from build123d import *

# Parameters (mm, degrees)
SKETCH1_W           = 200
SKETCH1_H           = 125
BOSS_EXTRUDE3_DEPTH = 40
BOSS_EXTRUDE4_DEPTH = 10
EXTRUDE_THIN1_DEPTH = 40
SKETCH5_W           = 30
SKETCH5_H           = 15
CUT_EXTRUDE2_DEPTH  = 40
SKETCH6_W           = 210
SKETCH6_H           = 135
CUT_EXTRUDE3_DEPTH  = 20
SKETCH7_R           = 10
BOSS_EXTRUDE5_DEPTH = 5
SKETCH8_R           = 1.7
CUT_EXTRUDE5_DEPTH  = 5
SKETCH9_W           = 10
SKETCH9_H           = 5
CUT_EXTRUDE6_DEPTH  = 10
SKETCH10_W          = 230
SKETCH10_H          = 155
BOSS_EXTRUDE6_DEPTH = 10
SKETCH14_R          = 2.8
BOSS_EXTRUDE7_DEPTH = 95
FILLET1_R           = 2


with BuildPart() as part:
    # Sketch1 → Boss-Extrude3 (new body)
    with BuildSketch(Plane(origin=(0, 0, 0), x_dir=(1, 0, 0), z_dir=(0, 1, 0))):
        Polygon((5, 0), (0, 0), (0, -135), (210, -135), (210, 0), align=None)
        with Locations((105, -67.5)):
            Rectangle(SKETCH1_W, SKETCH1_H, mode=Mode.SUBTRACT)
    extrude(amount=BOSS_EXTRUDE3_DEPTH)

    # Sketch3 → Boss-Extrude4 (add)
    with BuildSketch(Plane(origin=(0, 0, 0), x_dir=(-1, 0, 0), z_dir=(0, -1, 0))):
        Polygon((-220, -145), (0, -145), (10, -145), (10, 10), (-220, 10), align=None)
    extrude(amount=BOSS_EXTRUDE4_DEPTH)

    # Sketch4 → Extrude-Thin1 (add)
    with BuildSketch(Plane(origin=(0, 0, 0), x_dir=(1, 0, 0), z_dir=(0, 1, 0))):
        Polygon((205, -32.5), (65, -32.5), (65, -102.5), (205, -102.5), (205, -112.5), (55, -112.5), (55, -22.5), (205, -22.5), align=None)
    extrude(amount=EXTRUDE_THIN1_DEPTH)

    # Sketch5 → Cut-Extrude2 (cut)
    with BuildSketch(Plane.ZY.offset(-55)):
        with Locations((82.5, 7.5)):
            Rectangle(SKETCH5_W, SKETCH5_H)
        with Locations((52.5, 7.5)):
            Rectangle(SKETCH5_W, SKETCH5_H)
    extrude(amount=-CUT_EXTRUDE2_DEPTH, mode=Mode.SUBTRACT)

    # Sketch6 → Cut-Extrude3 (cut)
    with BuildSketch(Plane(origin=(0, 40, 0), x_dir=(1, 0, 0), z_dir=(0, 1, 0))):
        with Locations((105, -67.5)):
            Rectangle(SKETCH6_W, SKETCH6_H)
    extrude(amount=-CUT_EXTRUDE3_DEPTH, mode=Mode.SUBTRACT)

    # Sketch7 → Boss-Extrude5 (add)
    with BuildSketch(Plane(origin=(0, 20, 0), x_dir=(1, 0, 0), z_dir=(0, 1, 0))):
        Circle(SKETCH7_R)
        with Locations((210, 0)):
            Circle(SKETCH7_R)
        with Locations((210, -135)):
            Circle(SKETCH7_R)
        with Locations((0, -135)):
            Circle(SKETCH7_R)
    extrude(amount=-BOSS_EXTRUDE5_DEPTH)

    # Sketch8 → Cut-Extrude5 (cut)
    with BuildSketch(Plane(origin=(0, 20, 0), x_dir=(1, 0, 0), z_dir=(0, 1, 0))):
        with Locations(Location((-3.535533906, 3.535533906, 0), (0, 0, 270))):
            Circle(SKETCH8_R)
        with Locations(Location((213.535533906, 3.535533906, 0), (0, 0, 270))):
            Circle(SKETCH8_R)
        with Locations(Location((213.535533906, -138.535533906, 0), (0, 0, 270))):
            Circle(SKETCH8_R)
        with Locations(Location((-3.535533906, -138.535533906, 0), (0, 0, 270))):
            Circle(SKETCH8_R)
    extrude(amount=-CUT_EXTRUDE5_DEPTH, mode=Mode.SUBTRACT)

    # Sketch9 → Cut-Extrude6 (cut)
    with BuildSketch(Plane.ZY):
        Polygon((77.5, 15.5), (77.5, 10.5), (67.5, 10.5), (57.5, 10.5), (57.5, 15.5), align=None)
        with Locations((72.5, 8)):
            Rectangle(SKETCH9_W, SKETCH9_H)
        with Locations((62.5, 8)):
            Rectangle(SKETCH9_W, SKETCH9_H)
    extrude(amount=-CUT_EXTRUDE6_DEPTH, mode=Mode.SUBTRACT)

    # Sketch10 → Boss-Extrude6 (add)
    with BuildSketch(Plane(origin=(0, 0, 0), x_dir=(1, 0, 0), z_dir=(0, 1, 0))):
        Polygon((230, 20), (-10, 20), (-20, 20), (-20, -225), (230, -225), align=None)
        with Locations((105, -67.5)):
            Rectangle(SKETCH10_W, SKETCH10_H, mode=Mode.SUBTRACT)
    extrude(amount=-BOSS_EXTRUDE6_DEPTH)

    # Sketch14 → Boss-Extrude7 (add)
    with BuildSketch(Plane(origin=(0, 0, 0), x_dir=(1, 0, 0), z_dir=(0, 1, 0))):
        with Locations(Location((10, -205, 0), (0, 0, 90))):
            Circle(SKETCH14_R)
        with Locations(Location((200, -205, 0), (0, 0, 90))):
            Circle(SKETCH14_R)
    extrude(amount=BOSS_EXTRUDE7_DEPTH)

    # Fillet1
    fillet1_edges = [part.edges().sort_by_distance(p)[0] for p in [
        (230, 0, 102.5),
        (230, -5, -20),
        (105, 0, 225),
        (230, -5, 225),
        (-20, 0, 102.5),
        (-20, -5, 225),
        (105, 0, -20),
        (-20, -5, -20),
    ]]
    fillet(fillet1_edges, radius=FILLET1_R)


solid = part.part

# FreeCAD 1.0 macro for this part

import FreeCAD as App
import Part
import Sketcher

V = App.Vector
Q = App.Units.Quantity


def edges_at(feature, points):
    """Names of the edges that pass closest to the given points."""
    edges = feature.Shape.Edges
    near = lambda p: min(range(len(edges)), key=lambda i: edges[i].distToShape(Part.Vertex(*p))[0])
    return sorted({f"Edge{near(p) + 1}" for p in points})


def add_polygon(sketch, points):
    """Adds a closed chain of lines whose ends are joined by coincident constraints."""
    first, n = sketch.GeometryCount, len(points)
    for a, b in zip(points, points[1:] + points[:1]):
        sketch.addGeometry(Part.LineSegment(App.Vector(*a, 0), App.Vector(*b, 0)), False)
    for i in range(n):
        sketch.addConstraint(Sketcher.Constraint("Coincident", first + i, 2, first + (i + 1) % n, 1))

doc = App.newDocument("Part")
body = doc.addObject("PartDesign::Body", "Body")

# Sketch on XZ plane
sketch1 = body.newObject("Sketcher::SketchObject", "Sketch")
sketch1.AttachmentSupport = (doc.getObject("XZ_Plane"), [""])
sketch1.MapMode = "FlatFace"
add_polygon(sketch1, [(0, 0), (0, 135), (210, 135), (210, 0)])  # lines 0-3
add_polygon(sketch1, [(205, 130), (5, 130), (5, 5), (205, 5)])  # lines 4-7
sketch1.addConstraint(Sketcher.Constraint("Vertical", 0))
sketch1.addConstraint(Sketcher.Constraint("Horizontal", 1))
sketch1.addConstraint(Sketcher.Constraint("Vertical", 2))
sketch1.addConstraint(Sketcher.Constraint("Horizontal", 3))
sketch1.addConstraint(Sketcher.Constraint("Horizontal", 4))
sketch1.addConstraint(Sketcher.Constraint("Vertical", 5))
sketch1.addConstraint(Sketcher.Constraint("Horizontal", 6))
sketch1.addConstraint(Sketcher.Constraint("Vertical", 7))
sketch1.addConstraint(Sketcher.Constraint("Coincident", 3, 2, -1, 1))
sketch1.addConstraint(Sketcher.Constraint("DistanceX", 1, 1, 1, 2, Q("210 mm")))
sketch1.addConstraint(Sketcher.Constraint("DistanceX", 4, 2, 4, 1, Q("200 mm")))
sketch1.addConstraint(Sketcher.Constraint("DistanceY", 0, 1, 0, 2, Q("135 mm")))
sketch1.addConstraint(Sketcher.Constraint("DistanceY", 5, 2, 5, 1, Q("125 mm")))
sketch1.addConstraint(Sketcher.Constraint("DistanceX", -1, 1, 4, 2, Q("5 mm")))
sketch1.addConstraint(Sketcher.Constraint("DistanceY", -1, 1, 4, 2, Q("130 mm")))
pad1 = body.newObject("PartDesign::Pad", "Pad")
pad1.Profile = sketch1
pad1.Length = 40
pad1.Reversed = True

# Sketch on XZ plane
sketch2 = body.newObject("Sketcher::SketchObject", "Sketch001")
sketch2.AttachmentSupport = (doc.getObject("XZ_Plane"), [""])
sketch2.MapMode = "FlatFace"
add_polygon(sketch2, [(220, 145), (-10, 145), (-10, -10), (220, -10)])  # lines 0-3
sketch2.addConstraint(Sketcher.Constraint("Horizontal", 0))
sketch2.addConstraint(Sketcher.Constraint("Vertical", 1))
sketch2.addConstraint(Sketcher.Constraint("Horizontal", 2))
sketch2.addConstraint(Sketcher.Constraint("Vertical", 3))
sketch2.addConstraint(Sketcher.Constraint("DistanceX", 0, 2, 0, 1, Q("230 mm")))
sketch2.addConstraint(Sketcher.Constraint("DistanceY", 1, 2, 1, 1, Q("155 mm")))
sketch2.addConstraint(Sketcher.Constraint("DistanceX", 0, 2, -1, 1, Q("10 mm")))
sketch2.addConstraint(Sketcher.Constraint("DistanceY", -1, 1, 0, 2, Q("145 mm")))
pad2 = body.newObject("PartDesign::Pad", "Pad001")
pad2.Profile = sketch2
pad2.Length = 10

# Sketch on XZ plane
sketch3 = body.newObject("Sketcher::SketchObject", "Sketch002")
sketch3.AttachmentSupport = (doc.getObject("XZ_Plane"), [""])
sketch3.MapMode = "FlatFace"
add_polygon(sketch3, [(65, 32), (205, 32), (205, 22), (55, 22), (55, 112), (205, 112), (205, 102), (65, 102)])  # lines 0-7
sketch3.addConstraint(Sketcher.Constraint("Horizontal", 0))
sketch3.addConstraint(Sketcher.Constraint("Vertical", 1))
sketch3.addConstraint(Sketcher.Constraint("Horizontal", 2))
sketch3.addConstraint(Sketcher.Constraint("Vertical", 3))
sketch3.addConstraint(Sketcher.Constraint("Horizontal", 4))
sketch3.addConstraint(Sketcher.Constraint("Vertical", 5))
sketch3.addConstraint(Sketcher.Constraint("Horizontal", 6))
sketch3.addConstraint(Sketcher.Constraint("Vertical", 7))
sketch3.addConstraint(Sketcher.Constraint("Vertical", 1, 2, 4, 2))
sketch3.addConstraint(Sketcher.Constraint("Equal", 1, 5))
sketch3.addConstraint(Sketcher.Constraint("DistanceX", 0, 1, 0, 2, Q("140 mm")))
sketch3.addConstraint(Sketcher.Constraint("DistanceX", 2, 2, 2, 1, Q("150 mm")))
sketch3.addConstraint(Sketcher.Constraint("DistanceY", 1, 2, 1, 1, Q("10 mm")))
sketch3.addConstraint(Sketcher.Constraint("DistanceY", 3, 1, 3, 2, Q("90 mm")))
sketch3.addConstraint(Sketcher.Constraint("DistanceX", -1, 1, 0, 2, Q("205 mm")))
sketch3.addConstraint(Sketcher.Constraint("DistanceY", -1, 1, 0, 2, Q("32.5 mm")))
pad3 = body.newObject("PartDesign::Pad", "Pad002")
pad3.Profile = sketch3
pad3.Length = 40
pad3.Reversed = True

# Sketch on YZ plane
sketch4 = body.newObject("Sketcher::SketchObject", "Sketch003")
sketch4.AttachmentSupport = (doc.getObject("YZ_Plane"), [""])
sketch4.MapMode = "FlatFace"
sketch4.AttachmentOffset = App.Placement(V(0, 0, 55), App.Rotation())
add_polygon(sketch4, [(0, 98), (15, 98), (15, 38), (0, 38)])  # lines 0-3
sketch4.addConstraint(Sketcher.Constraint("Horizontal", 0))
sketch4.addConstraint(Sketcher.Constraint("Vertical", 1))
sketch4.addConstraint(Sketcher.Constraint("Horizontal", 2))
sketch4.addConstraint(Sketcher.Constraint("Vertical", 3))
sketch4.addConstraint(Sketcher.Constraint("PointOnObject", 2, 2, -2))
sketch4.addConstraint(Sketcher.Constraint("DistanceX", 0, 1, 0, 2, Q("15 mm")))
sketch4.addConstraint(Sketcher.Constraint("DistanceY", 1, 2, 1, 1, Q("60 mm")))
sketch4.addConstraint(Sketcher.Constraint("DistanceY", -1, 1, 0, 2, Q("97.5 mm")))
pocket1 = body.newObject("PartDesign::Pocket", "Pocket")
pocket1.Profile = sketch4
pocket1.Length = 40
pocket1.Reversed = True

# Sketch on XZ plane
sketch5 = body.newObject("Sketcher::SketchObject", "Sketch004")
sketch5.AttachmentSupport = (doc.getObject("XZ_Plane"), [""])
sketch5.MapMode = "FlatFace"
sketch5.AttachmentOffset = App.Placement(V(0, 0, -40), App.Rotation())
add_polygon(sketch5, [(0, 0), (0, 135), (210, 135), (210, 0)])  # lines 0-3
sketch5.addConstraint(Sketcher.Constraint("Vertical", 0))
sketch5.addConstraint(Sketcher.Constraint("Horizontal", 1))
sketch5.addConstraint(Sketcher.Constraint("Vertical", 2))
sketch5.addConstraint(Sketcher.Constraint("Horizontal", 3))
sketch5.addConstraint(Sketcher.Constraint("Coincident", 3, 2, -1, 1))
sketch5.addConstraint(Sketcher.Constraint("DistanceX", 1, 1, 1, 2, Q("210 mm")))
sketch5.addConstraint(Sketcher.Constraint("DistanceY", 0, 1, 0, 2, Q("135 mm")))
pocket2 = body.newObject("PartDesign::Pocket", "Pocket001")
pocket2.Profile = sketch5
pocket2.Length = 20
pocket2.Reversed = True

# Sketch on XZ plane
sketch6 = body.newObject("Sketcher::SketchObject", "Sketch005")
sketch6.AttachmentSupport = (doc.getObject("XZ_Plane"), [""])
sketch6.MapMode = "FlatFace"
sketch6.AttachmentOffset = App.Placement(V(0, 0, -20), App.Rotation())
sketch6.addGeometry(Part.Circle(V(0, 0, 0), V(0, 0, 1), 10), False)
sketch6.addGeometry(Part.Circle(V(210, 0, 0), V(0, 0, 1), 10), False)
sketch6.addGeometry(Part.Circle(V(210, 135, 0), V(0, 0, 1), 10), False)
sketch6.addGeometry(Part.Circle(V(0, 135, 0), V(0, 0, 1), 10), False)
sketch6.addConstraint(Sketcher.Constraint("Coincident", 0, 3, -1, 1))
sketch6.addConstraint(Sketcher.Constraint("Equal", 0, 1))
sketch6.addConstraint(Sketcher.Constraint("Equal", 1, 2))
sketch6.addConstraint(Sketcher.Constraint("Equal", 2, 3))
sketch6.addConstraint(Sketcher.Constraint("PointOnObject", 1, 3, -1))
sketch6.addConstraint(Sketcher.Constraint("PointOnObject", 3, 3, -2))
sketch6.addConstraint(Sketcher.Constraint("Horizontal", 2, 3, 3, 3))
sketch6.addConstraint(Sketcher.Constraint("Vertical", 1, 3, 2, 3))
sketch6.addConstraint(Sketcher.Constraint("Diameter", 0, Q("20 mm")))
sketch6.addConstraint(Sketcher.Constraint("DistanceX", -1, 1, 1, 3, Q("210 mm")))
sketch6.addConstraint(Sketcher.Constraint("DistanceY", -1, 1, 2, 3, Q("135 mm")))
pad4 = body.newObject("PartDesign::Pad", "Pad003")
pad4.Profile = sketch6
pad4.Length = 5

# Sketch on XZ plane
sketch7 = body.newObject("Sketcher::SketchObject", "Sketch006")
sketch7.AttachmentSupport = (doc.getObject("XZ_Plane"), [""])
sketch7.MapMode = "FlatFace"
sketch7.AttachmentOffset = App.Placement(V(0, 0, -20), App.Rotation())
sketch7.addGeometry(Part.Circle(V(-3.5, -3.5, 0), V(0, 0, 1), 1.7), False)
sketch7.addGeometry(Part.Circle(V(213.5, -3.5, 0), V(0, 0, 1), 1.7), False)
sketch7.addGeometry(Part.Circle(V(213.5, 138.5, 0), V(0, 0, 1), 1.7), False)
sketch7.addGeometry(Part.Circle(V(-3.5, 138.5, 0), V(0, 0, 1), 1.7), False)
sketch7.addConstraint(Sketcher.Constraint("Equal", 0, 1))
sketch7.addConstraint(Sketcher.Constraint("Equal", 1, 2))
sketch7.addConstraint(Sketcher.Constraint("Equal", 2, 3))
sketch7.addConstraint(Sketcher.Constraint("Horizontal", 0, 3, 1, 3))
sketch7.addConstraint(Sketcher.Constraint("Horizontal", 2, 3, 3, 3))
sketch7.addConstraint(Sketcher.Constraint("Vertical", 1, 3, 2, 3))
sketch7.addConstraint(Sketcher.Constraint("Vertical", 0, 3, 3, 3))
sketch7.addConstraint(Sketcher.Constraint("Diameter", 0, Q("3.4 mm")))
sketch7.addConstraint(Sketcher.Constraint("DistanceX", 0, 3, -1, 1, Q("3.535534 mm")))
sketch7.addConstraint(Sketcher.Constraint("DistanceY", 0, 3, -1, 1, Q("3.535534 mm")))
sketch7.addConstraint(Sketcher.Constraint("DistanceX", -1, 1, 1, 3, Q("213.535534 mm")))
sketch7.addConstraint(Sketcher.Constraint("DistanceY", -1, 1, 2, 3, Q("138.535534 mm")))
pocket3 = body.newObject("PartDesign::Pocket", "Pocket002")
pocket3.Profile = sketch7
pocket3.Length = 5
pocket3.Reversed = True

# Sketch on YZ plane
sketch8 = body.newObject("Sketcher::SketchObject", "Sketch007")
sketch8.AttachmentSupport = (doc.getObject("YZ_Plane"), [""])
sketch8.MapMode = "FlatFace"
add_polygon(sketch8, [(6, 78), (16, 78), (16, 58), (6, 58)])  # lines 0-3
sketch8.addConstraint(Sketcher.Constraint("Horizontal", 0))
sketch8.addConstraint(Sketcher.Constraint("Vertical", 1))
sketch8.addConstraint(Sketcher.Constraint("Horizontal", 2))
sketch8.addConstraint(Sketcher.Constraint("Vertical", 3))
sketch8.addConstraint(Sketcher.Constraint("DistanceX", 0, 1, 0, 2, Q("10 mm")))
sketch8.addConstraint(Sketcher.Constraint("DistanceY", 1, 2, 1, 1, Q("20 mm")))
sketch8.addConstraint(Sketcher.Constraint("DistanceX", -1, 1, 0, 2, Q("15.5 mm")))
sketch8.addConstraint(Sketcher.Constraint("DistanceY", -1, 1, 0, 2, Q("77.5 mm")))
pocket4 = body.newObject("PartDesign::Pocket", "Pocket003")
pocket4.Profile = sketch8
pocket4.Length = 10
pocket4.Reversed = True

# Sketch on XZ plane
sketch9 = body.newObject("Sketcher::SketchObject", "Sketch008")
sketch9.AttachmentSupport = (doc.getObject("XZ_Plane"), [""])
sketch9.MapMode = "FlatFace"
add_polygon(sketch9, [(230, -20), (-20, -20), (-20, 225), (230, 225)])  # lines 0-3
add_polygon(sketch9, [(220, 145), (-10, 145), (-10, -10), (220, -10)])  # lines 4-7
sketch9.addConstraint(Sketcher.Constraint("Horizontal", 0))
sketch9.addConstraint(Sketcher.Constraint("Vertical", 1))
sketch9.addConstraint(Sketcher.Constraint("Horizontal", 2))
sketch9.addConstraint(Sketcher.Constraint("Vertical", 3))
sketch9.addConstraint(Sketcher.Constraint("Horizontal", 4))
sketch9.addConstraint(Sketcher.Constraint("Vertical", 5))
sketch9.addConstraint(Sketcher.Constraint("Horizontal", 6))
sketch9.addConstraint(Sketcher.Constraint("Vertical", 7))
sketch9.addConstraint(Sketcher.Constraint("DistanceX", 0, 2, 0, 1, Q("250 mm")))
sketch9.addConstraint(Sketcher.Constraint("DistanceX", 4, 2, 4, 1, Q("230 mm")))
sketch9.addConstraint(Sketcher.Constraint("DistanceY", 1, 1, 1, 2, Q("245 mm")))
sketch9.addConstraint(Sketcher.Constraint("DistanceY", 5, 2, 5, 1, Q("155 mm")))
sketch9.addConstraint(Sketcher.Constraint("DistanceX", 0, 2, -1, 1, Q("20 mm")))
sketch9.addConstraint(Sketcher.Constraint("DistanceY", 0, 2, -1, 1, Q("20 mm")))
sketch9.addConstraint(Sketcher.Constraint("DistanceX", 4, 2, -1, 1, Q("10 mm")))
sketch9.addConstraint(Sketcher.Constraint("DistanceY", -1, 1, 4, 2, Q("145 mm")))
pad5 = body.newObject("PartDesign::Pad", "Pad004")
pad5.Profile = sketch9
pad5.Length = 10

# Sketch on XZ plane
sketch10 = body.newObject("Sketcher::SketchObject", "Sketch009")
sketch10.AttachmentSupport = (doc.getObject("XZ_Plane"), [""])
sketch10.MapMode = "FlatFace"
sketch10.addGeometry(Part.Circle(V(10, 205, 0), V(0, 0, 1), 2.8), False)
sketch10.addGeometry(Part.Circle(V(200, 205, 0), V(0, 0, 1), 2.8), False)
sketch10.addConstraint(Sketcher.Constraint("Equal", 0, 1))
sketch10.addConstraint(Sketcher.Constraint("Horizontal", 0, 3, 1, 3))
sketch10.addConstraint(Sketcher.Constraint("Diameter", 0, Q("5.6 mm")))
sketch10.addConstraint(Sketcher.Constraint("DistanceX", -1, 1, 0, 3, Q("10 mm")))
sketch10.addConstraint(Sketcher.Constraint("DistanceY", -1, 1, 0, 3, Q("205 mm")))
sketch10.addConstraint(Sketcher.Constraint("DistanceX", -1, 1, 1, 3, Q("200 mm")))
pad6 = body.newObject("PartDesign::Pad", "Pad005")
pad6.Profile = sketch10
pad6.Length = 95
pad6.Reversed = True
doc.recompute()

fillet = body.newObject("PartDesign::Fillet", "Fillet")
fillet.Base = (pad6, edges_at(pad6, [
    (230, 0, 102.5),
    (230, -5, -20),
    (105, 0, 225),
    (230, -5, 225),
    (-20, 0, 102.5),
    (-20, -5, 225),
    (105, 0, -20),
    (-20, -5, -20),
]))
fillet.Radius = 2

doc.recompute()
